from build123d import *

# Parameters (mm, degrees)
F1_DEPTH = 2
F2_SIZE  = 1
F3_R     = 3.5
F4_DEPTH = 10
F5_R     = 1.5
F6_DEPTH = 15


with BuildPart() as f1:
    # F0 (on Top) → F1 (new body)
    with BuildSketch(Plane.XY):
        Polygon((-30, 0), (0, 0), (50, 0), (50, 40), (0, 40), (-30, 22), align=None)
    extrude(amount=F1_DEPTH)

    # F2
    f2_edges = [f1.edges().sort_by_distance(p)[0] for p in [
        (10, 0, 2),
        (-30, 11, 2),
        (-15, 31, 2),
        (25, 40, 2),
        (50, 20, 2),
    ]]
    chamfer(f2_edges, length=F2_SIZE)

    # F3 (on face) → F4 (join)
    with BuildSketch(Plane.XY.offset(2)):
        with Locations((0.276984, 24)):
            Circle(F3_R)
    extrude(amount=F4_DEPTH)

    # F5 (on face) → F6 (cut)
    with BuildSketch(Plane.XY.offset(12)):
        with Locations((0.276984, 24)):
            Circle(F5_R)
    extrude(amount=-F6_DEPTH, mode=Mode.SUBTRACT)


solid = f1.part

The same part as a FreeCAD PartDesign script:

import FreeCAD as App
import Part
import Sketcher

V = App.Vector


def edges_at(feature, points):
    """Names of the edges that pass closest to the given points."""
    edges = feature.Shape.Edges
    near = lambda p: min(range(len(edges)), key=lambda i: edges[i].distToShape(Part.Vertex(*p))[0])
    return sorted({f"Edge{near(p) + 1}" for p in points})

doc = App.newDocument("Part")
body = doc.addObject("PartDesign::Body", "Body")

# Sketch on XY plane
sketch1 = doc.addObject("Sketcher::SketchObject", "Sketch")
body.addObject(sketch1)
sketch1.AttachmentSupport = (doc.XY_Plane, [""])
sketch1.MapMode = "FlatFace"
sketch1.addGeometry([
    Part.LineSegment(V(-30, 0, 0), V(50, 0, 0)),  # 0
    Part.LineSegment(V(50, 0, 0), V(50, 40, 0)),  # 1
    Part.LineSegment(V(50, 40, 0), V(0, 40, 0)),  # 2
    Part.LineSegment(V(0, 40, 0), V(-30, 22, 0)),  # 3
    Part.LineSegment(V(-30, 22, 0), V(-30, 0, 0)),  # 4
], False)
sketch1.addConstraint([
    Sketcher.Constraint("Coincident", 0, 2, 1, 1),
    Sketcher.Constraint("Coincident", 1, 2, 2, 1),
    Sketcher.Constraint("Coincident", 2, 2, 3, 1),
    Sketcher.Constraint("Coincident", 3, 2, 4, 1),
    Sketcher.Constraint("Coincident", 4, 2, 0, 1),
    Sketcher.Constraint("Horizontal", 0),
    Sketcher.Constraint("Vertical", 1),
    Sketcher.Constraint("Horizontal", 2),
    Sketcher.Constraint("Vertical", 4),
    Sketcher.Constraint("PointOnObject", 0, 2, -1),
    Sketcher.Constraint("PointOnObject", 2, 2, -2),
    Sketcher.Constraint("DistanceX", 0, 1, 0, 2, 80.0),
    Sketcher.Constraint("DistanceX", 2, 2, 2, 1, 50.0),
    Sketcher.Constraint("DistanceY", 1, 1, 1, 2, 40.0),
    Sketcher.Constraint("DistanceY", 4, 2, 4, 1, 22.0),
])
pad1 = doc.addObject("PartDesign::Pad", "Pad")
body.addObject(pad1)
pad1.Profile = sketch1
pad1.Length = 2
doc.recompute()

chamfer = doc.addObject("PartDesign::Chamfer", "Chamfer")
body.addObject(chamfer)
chamfer.Base = (pad1, edges_at(pad1, [
    (10, 0, 2),
    (-30, 11, 2),
    (-15, 31, 2),
    (25, 40, 2),
    (50, 20, 2),
]))
chamfer.Size = 1

# Sketch on XY plane
sketch2 = doc.addObject("Sketcher::SketchObject", "Sketch001")
body.addObject(sketch2)
sketch2.AttachmentSupport = (doc.XY_Plane, [""])
sketch2.MapMode = "FlatFace"
sketch2.AttachmentOffset = App.Placement(V(0, 0, 2), App.Rotation())
sketch2.addGeometry(Part.Circle(V(0.276984, 24, 0), V(0, 0, 1), 3.5), False)
sketch2.addConstraint([
    Sketcher.Constraint("Diameter", 0, 7.0),
    Sketcher.Constraint("DistanceY", -1, 1, 0, 3, 24.0),
    Sketcher.Constraint("DistanceX", -1, 1, 0, 3, 0.276984),
])
pad2 = doc.addObject("PartDesign::Pad", "Pad001")
body.addObject(pad2)
pad2.Profile = sketch2
pad2.Length = 10

# Sketch on XY plane
sketch3 = doc.addObject("Sketcher::SketchObject", "Sketch002")
body.addObject(sketch3)
sketch3.AttachmentSupport = (doc.XY_Plane, [""])
sketch3.MapMode = "FlatFace"
sketch3.AttachmentOffset = App.Placement(V(0, 0, 12), App.Rotation())
sketch3.addGeometry(Part.Circle(V(0.276984, 24, 0), V(0, 0, 1), 1.5), False)
sketch3.addConstraint([
    Sketcher.Constraint("Diameter", 0, 3.0),
    Sketcher.Constraint("DistanceY", -1, 1, 0, 3, 24.0),
    Sketcher.Constraint("DistanceX", -1, 1, 0, 3, 0.276984),
])
pocket1 = doc.addObject("PartDesign::Pocket", "Pocket")
body.addObject(pocket1)
pocket1.Profile = sketch3
pocket1.Length = 15

doc.recompute()
